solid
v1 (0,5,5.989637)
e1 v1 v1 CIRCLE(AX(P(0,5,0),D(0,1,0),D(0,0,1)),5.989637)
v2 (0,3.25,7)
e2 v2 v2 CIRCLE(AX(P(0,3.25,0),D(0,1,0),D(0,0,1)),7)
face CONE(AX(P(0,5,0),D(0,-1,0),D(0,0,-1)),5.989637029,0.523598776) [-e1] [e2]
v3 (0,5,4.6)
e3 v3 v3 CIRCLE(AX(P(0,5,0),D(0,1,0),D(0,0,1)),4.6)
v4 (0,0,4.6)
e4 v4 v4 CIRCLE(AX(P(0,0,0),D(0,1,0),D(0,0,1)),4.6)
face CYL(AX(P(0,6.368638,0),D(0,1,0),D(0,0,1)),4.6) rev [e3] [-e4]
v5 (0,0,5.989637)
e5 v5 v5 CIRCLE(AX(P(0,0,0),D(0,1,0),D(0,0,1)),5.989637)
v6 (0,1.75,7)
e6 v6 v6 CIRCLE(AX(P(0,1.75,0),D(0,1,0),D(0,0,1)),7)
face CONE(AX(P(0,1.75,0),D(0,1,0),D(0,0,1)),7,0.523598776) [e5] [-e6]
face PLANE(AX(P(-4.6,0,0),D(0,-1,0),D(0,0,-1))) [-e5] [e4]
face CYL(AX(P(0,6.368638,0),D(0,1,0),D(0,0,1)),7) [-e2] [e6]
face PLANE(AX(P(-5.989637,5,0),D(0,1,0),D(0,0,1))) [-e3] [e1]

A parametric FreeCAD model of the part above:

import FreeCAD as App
import Part
import Sketcher
Q = App.Units.Quantity

doc = App.newDocument("Part")
body = doc.addObject("PartDesign::Body", "Body")

# Sketch on XY plane
sketch1 = body.newObject("Sketcher::SketchObject", "Sketch")
sketch1.AttachmentSupport = (doc.getObject("XY_Plane"), [""])
sketch1.MapMode = "FlatFace"
sketch1.addGeometry([
    Part.LineSegment(App.Vector(-7, 1.75, 0), App.Vector(-5.989637, 0, 0)),  # 0
    Part.LineSegment(App.Vector(-5.989637, 0, 0), App.Vector(-4.6, 0, 0)),  # 1
    Part.LineSegment(App.Vector(-4.6, 0, 0), App.Vector(-4.6, 5, 0)),  # 2
    Part.LineSegment(App.Vector(-4.6, 5, 0), App.Vector(-5.989637, 5, 0)),  # 3
    Part.LineSegment(App.Vector(-5.989637, 5, 0), App.Vector(-7, 3.25, 0)),  # 4
    Part.LineSegment(App.Vector(-7, 3.25, 0), App.Vector(-7, 1.75, 0)),  # 5
], False)
sketch1.addConstraint([
    Sketcher.Constraint("Coincident", 0, 2, 1, 1),
    Sketcher.Constraint("Coincident", 1, 2, 2, 1),
    Sketcher.Constraint("Coincident", 2, 2, 3, 1),
    Sketcher.Constraint("Coincident", 3, 2, 4, 1),
    Sketcher.Constraint("Coincident", 4, 2, 5, 1),
    Sketcher.Constraint("Coincident", 5, 2, 0, 1),
    Sketcher.Constraint("Horizontal", 1),
    Sketcher.Constraint("Vertical", 2),
    Sketcher.Constraint("Horizontal", 3),
    Sketcher.Constraint("Vertical", 5),
    Sketcher.Constraint("PointOnObject", 0, 2, -1),
    Sketcher.Constraint("Vertical", 0, 2, 3, 2),
    Sketcher.Constraint("Equal", 0, 4),
    Sketcher.Constraint("DistanceY", 2, 1, 2, 2, 5.0),
    Sketcher.Constraint("Angle", 0, Q("-60 deg")),
    Sketcher.Constraint("DistanceY", 5, 2, 5, 1, 1.5),
    Sketcher.Constraint("DistanceX", 4, 2, -1, 1, 7.0),
    Sketcher.Constraint("DistanceX", 1, 2, -1, 1, 4.6),
])
revolution = body.newObject("PartDesign::Revolution", "Revolution")
revolution.Profile = sketch1
revolution.ReferenceAxis = (sketch1, ["V_Axis"])
revolution.Angle = 360

doc.recompute()
